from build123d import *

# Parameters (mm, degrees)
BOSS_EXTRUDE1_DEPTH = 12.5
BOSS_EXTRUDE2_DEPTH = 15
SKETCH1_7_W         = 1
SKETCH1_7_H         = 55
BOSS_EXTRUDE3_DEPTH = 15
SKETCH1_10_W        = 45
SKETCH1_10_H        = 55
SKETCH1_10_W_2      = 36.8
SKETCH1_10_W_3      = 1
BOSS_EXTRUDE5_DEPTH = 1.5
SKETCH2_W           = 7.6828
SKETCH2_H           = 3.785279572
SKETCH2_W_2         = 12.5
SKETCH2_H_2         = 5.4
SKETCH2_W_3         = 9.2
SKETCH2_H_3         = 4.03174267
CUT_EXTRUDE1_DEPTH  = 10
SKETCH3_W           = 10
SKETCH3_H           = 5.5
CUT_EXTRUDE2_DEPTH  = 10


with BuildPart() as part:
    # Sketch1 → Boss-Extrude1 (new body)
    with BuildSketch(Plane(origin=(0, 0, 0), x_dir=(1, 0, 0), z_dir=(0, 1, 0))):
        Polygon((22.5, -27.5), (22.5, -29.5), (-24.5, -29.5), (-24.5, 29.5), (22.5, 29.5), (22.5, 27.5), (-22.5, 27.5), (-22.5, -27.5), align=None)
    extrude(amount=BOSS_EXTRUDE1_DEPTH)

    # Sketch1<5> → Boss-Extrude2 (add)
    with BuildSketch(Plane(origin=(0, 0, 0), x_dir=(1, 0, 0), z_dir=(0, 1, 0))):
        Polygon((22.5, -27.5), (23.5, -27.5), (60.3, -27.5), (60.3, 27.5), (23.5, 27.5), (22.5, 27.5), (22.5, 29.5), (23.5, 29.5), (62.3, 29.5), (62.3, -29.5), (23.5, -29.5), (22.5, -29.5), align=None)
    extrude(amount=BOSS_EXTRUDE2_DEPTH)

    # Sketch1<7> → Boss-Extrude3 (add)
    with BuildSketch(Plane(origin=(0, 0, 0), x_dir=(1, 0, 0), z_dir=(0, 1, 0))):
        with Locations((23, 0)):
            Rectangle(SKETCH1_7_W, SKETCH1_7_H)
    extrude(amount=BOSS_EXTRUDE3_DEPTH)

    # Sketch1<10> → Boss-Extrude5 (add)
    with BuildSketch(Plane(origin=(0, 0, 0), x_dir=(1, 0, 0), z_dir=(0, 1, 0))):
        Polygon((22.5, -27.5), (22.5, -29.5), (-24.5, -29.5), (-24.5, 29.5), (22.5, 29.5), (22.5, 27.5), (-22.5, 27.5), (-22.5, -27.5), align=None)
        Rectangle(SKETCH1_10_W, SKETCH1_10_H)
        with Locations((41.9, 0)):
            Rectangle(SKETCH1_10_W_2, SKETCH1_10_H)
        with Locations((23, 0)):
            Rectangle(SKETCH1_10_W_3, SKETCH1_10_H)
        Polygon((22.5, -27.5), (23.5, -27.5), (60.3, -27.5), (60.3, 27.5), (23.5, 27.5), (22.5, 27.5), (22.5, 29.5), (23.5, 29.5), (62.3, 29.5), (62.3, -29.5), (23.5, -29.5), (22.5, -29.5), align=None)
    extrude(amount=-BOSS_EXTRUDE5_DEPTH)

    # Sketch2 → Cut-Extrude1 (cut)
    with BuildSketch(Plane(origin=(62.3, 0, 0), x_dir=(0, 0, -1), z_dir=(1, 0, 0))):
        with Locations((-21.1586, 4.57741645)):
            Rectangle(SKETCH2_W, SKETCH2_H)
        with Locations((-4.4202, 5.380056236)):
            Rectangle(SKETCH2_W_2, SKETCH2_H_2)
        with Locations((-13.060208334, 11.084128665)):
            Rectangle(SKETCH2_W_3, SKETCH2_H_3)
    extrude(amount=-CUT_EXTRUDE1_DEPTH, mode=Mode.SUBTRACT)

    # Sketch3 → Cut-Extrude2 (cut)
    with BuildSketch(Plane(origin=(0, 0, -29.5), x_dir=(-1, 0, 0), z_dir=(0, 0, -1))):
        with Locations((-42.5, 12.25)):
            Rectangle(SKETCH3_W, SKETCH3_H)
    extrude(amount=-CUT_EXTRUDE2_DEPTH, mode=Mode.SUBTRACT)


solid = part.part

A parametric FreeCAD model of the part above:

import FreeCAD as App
import Part
import Sketcher

V = App.Vector
Q = App.Units.Quantity

doc = App.newDocument("Part")
body = doc.addObject("PartDesign::Body", "Body")

# Sketch on XZ plane
sketch1 = doc.addObject("Sketcher::SketchObject", "Sketch")
body.addObject(sketch1)
sketch1.AttachmentSupport = (doc.XZ_Plane, [""])
sketch1.MapMode = "FlatFace"
sketch1.addGeometry([
    Part.LineSegment(V(22.5, 29.5, 0), V(22.5, 27.5, 0)),  # 0
    Part.LineSegment(V(22.5, 27.5, 0), V(-22.5, 27.5, 0)),  # 1
    Part.LineSegment(V(-22.5, 27.5, 0), V(-22.5, -27.5, 0)),  # 2
    Part.LineSegment(V(-22.5, -27.5, 0), V(22.5, -27.5, 0)),  # 3
    Part.LineSegment(V(22.5, -27.5, 0), V(22.5, -29.5, 0)),  # 4
    Part.LineSegment(V(22.5, -29.5, 0), V(-24.5, -29.5, 0)),  # 5
    Part.LineSegment(V(-24.5, -29.5, 0), V(-24.5, 29.5, 0)),  # 6
    Part.LineSegment(V(-24.5, 29.5, 0), V(22.5, 29.5, 0)),  # 7
], False)
sketch1.addConstraint([
    Sketcher.Constraint("Coincident", 0, 2, 1, 1),
    Sketcher.Constraint("Coincident", 1, 2, 2, 1),
    Sketcher.Constraint("Coincident", 2, 2, 3, 1),
    Sketcher.Constraint("Coincident", 3, 2, 4, 1),
    Sketcher.Constraint("Coincident", 4, 2, 5, 1),
    Sketcher.Constraint("Coincident", 5, 2, 6, 1),
    Sketcher.Constraint("Coincident", 6, 2, 7, 1),
    Sketcher.Constraint("Coincident", 7, 2, 0, 1),
    Sketcher.Constraint("Vertical", 0),
    Sketcher.Constraint("Horizontal", 1),
    Sketcher.Constraint("Vertical", 2),
    Sketcher.Constraint("Horizontal", 3),
    Sketcher.Constraint("Vertical", 4),
    Sketcher.Constraint("Horizontal", 5),
    Sketcher.Constraint("Vertical", 6),
    Sketcher.Constraint("Horizontal", 7),
    Sketcher.Constraint("Symmetric", 0, 2, 2, 2, -1, 1),
    Sketcher.Constraint("Symmetric", 4, 2, 7, 2, -1),
    Sketcher.Constraint("DistanceX", 1, 2, 1, 1, Q("45 mm")),
    Sketcher.Constraint("DistanceX", 5, 2, 5, 1, Q("47 mm")),
    Sketcher.Constraint("DistanceY", 0, 2, 0, 1, Q("2 mm")),
    Sketcher.Constraint("DistanceY", 2, 2, 2, 1, Q("55 mm")),
])
pad1 = doc.addObject("PartDesign::Pad", "Pad")
body.addObject(pad1)
pad1.Profile = sketch1
pad1.Length = 12.5
pad1.Reversed = True

# Sketch on XZ plane
sketch2 = doc.addObject("Sketcher::SketchObject", "Sketch001")
body.addObject(sketch2)
sketch2.AttachmentSupport = (doc.XZ_Plane, [""])
sketch2.MapMode = "FlatFace"
sketch2.addGeometry([
    Part.LineSegment(V(60.3, 27.5, 0), V(22.5, 27.5, 0)),  # 0
    Part.LineSegment(V(22.5, 27.5, 0), V(22.5, 29.5, 0)),  # 1
    Part.LineSegment(V(22.5, 29.5, 0), V(62.3, 29.5, 0)),  # 2
    Part.LineSegment(V(62.3, 29.5, 0), V(62.3, -29.5, 0)),  # 3
    Part.LineSegment(V(62.3, -29.5, 0), V(22.5, -29.5, 0)),  # 4
    Part.LineSegment(V(22.5, -29.5, 0), V(22.5, -27.5, 0)),  # 5
    Part.LineSegment(V(22.5, -27.5, 0), V(60.3, -27.5, 0)),  # 6
    Part.LineSegment(V(60.3, -27.5, 0), V(60.3, 27.5, 0)),  # 7
], False)
sketch2.addConstraint([
    Sketcher.Constraint("Coincident", 0, 2, 1, 1),
    Sketcher.Constraint("Coincident", 1, 2, 2, 1),
    Sketcher.Constraint("Coincident", 2, 2, 3, 1),
    Sketcher.Constraint("Coincident", 3, 2, 4, 1),
    Sketcher.Constraint("Coincident", 4, 2, 5, 1),
    Sketcher.Constraint("Coincident", 5, 2, 6, 1),
    Sketcher.Constraint("Coincident", 6, 2, 7, 1),
    Sketcher.Constraint("Coincident", 7, 2, 0, 1),
    Sketcher.Constraint("Horizontal", 0),
    Sketcher.Constraint("Vertical", 1),
    Sketcher.Constraint("Horizontal", 2),
    Sketcher.Constraint("Vertical", 3),
    Sketcher.Constraint("Horizontal", 4),
    Sketcher.Constraint("Vertical", 5),
    Sketcher.Constraint("Horizontal", 6),
    Sketcher.Constraint("Vertical", 7),
    Sketcher.Constraint("Symmetric", 1, 2, 4, 2, -1),
    Sketcher.Constraint("Equal", 1, 5),
    Sketcher.Constraint("DistanceY", 1, 1, 1, 2, Q("2 mm")),
    Sketcher.Constraint("DistanceY", 3, 2, 3, 1, Q("59 mm")),
    Sketcher.Constraint("DistanceX", 0, 2, 0, 1, Q("37.8 mm")),
    Sketcher.Constraint("DistanceX", 2, 1, 2, 2, Q("39.8 mm")),
    Sketcher.Constraint("DistanceX", -1, 1, 0, 2, Q("22.5 mm")),
])
pad2 = doc.addObject("PartDesign::Pad", "Pad001")
body.addObject(pad2)
pad2.Profile = sketch2
pad2.Length = 15
pad2.Reversed = True

# Sketch on XZ plane
sketch3 = doc.addObject("Sketcher::SketchObject", "Sketch002")
body.addObject(sketch3)
sketch3.AttachmentSupport = (doc.XZ_Plane, [""])
sketch3.MapMode = "FlatFace"
sketch3.addGeometry([
    Part.LineSegment(V(22.5, -27.5, 0), V(22.5, 27.5, 0)),
    Part.LineSegment(V(22.5, 27.5, 0), V(23.5, 27.5, 0)),
    Part.LineSegment(V(23.5, 27.5, 0), V(23.5, -27.5, 0)),
    Part.LineSegment(V(23.5, -27.5, 0), V(22.5, -27.5, 0)),
], False)
sketch3.addConstraint([
    Sketcher.Constraint("Coincident", 0, 2, 1, 1),
    Sketcher.Constraint("Coincident", 1, 2, 2, 1),
    Sketcher.Constraint("Coincident", 2, 2, 3, 1),
    Sketcher.Constraint("Coincident", 3, 2, 0, 1),
    Sketcher.Constraint("Vertical", 0),
    Sketcher.Constraint("Horizontal", 1),
    Sketcher.Constraint("Vertical", 2),
    Sketcher.Constraint("Horizontal", 3),
    Sketcher.Constraint("DistanceX", 1, 1, 1, 2, Q("1 mm")),
    Sketcher.Constraint("DistanceY", 0, 1, 0, 2, Q("55 mm")),
    Sketcher.Constraint("DistanceX", -1, 1, 0, 2, Q("22.5 mm")),
    Sketcher.Constraint("DistanceY", -1, 1, 0, 2, Q("27.5 mm")),
])
pad3 = doc.addObject("PartDesign::Pad", "Pad002")
body.addObject(pad3)
pad3.Profile = sketch3
pad3.Length = 15
pad3.Reversed = True

# Sketch on XZ plane
sketch4 = doc.addObject("Sketcher::SketchObject", "Sketch003")
body.addObject(sketch4)
sketch4.AttachmentSupport = (doc.XZ_Plane, [""])
sketch4.MapMode = "FlatFace"
sketch4.addGeometry([
    Part.LineSegment(V(-24, 30, 0), V(62, 30, 0)),
    Part.LineSegment(V(62, 30, 0), V(62, -30, 0)),
    Part.LineSegment(V(62, -30, 0), V(-24, -30, 0)),
    Part.LineSegment(V(-24, -30, 0), V(-24, 30, 0)),
], False)
sketch4.addConstraint([
    Sketcher.Constraint("Coincident", 0, 2, 1, 1),
    Sketcher.Constraint("Coincident", 1, 2, 2, 1),
    Sketcher.Constraint("Coincident", 2, 2, 3, 1),
    Sketcher.Constraint("Coincident", 3, 2, 0, 1),
    Sketcher.Constraint("Horizontal", 0),
    Sketcher.Constraint("Vertical", 1),
    Sketcher.Constraint("Horizontal", 2),
    Sketcher.Constraint("Vertical", 3),
    Sketcher.Constraint("DistanceY", 1, 2, 1, 1, Q("59 mm")),
    Sketcher.Constraint("DistanceX", 0, 1, 0, 2, Q("86.8 mm")),
    Sketcher.Constraint("DistanceX", -1, 1, 0, 2, Q("62.3 mm")),
    Sketcher.Constraint("DistanceY", -1, 1, 0, 2, Q("29.5 mm")),
])
pad4 = doc.addObject("PartDesign::Pad", "Pad003")
body.addObject(pad4)
pad4.Profile = sketch4
pad4.Length = 1.5

# Sketch on YZ plane
sketch5 = doc.addObject("Sketcher::SketchObject", "Sketch004")
body.addObject(sketch5)
sketch5.AttachmentSupport = (doc.YZ_Plane, [""])
sketch5.MapMode = "FlatFace"
sketch5.AttachmentOffset = App.Placement(V(0, 0, 62.3), App.Rotation())
sketch5.addGeometry([
    Part.LineSegment(V(6.5, 25, 0), V(2.7, 25, 0)),  # 0
    Part.LineSegment(V(2.7, 25, 0), V(2.7, 17.3, 0)),  # 1
    Part.LineSegment(V(2.7, 17.3, 0), V(6.5, 17.3, 0)),  # 2
    Part.LineSegment(V(6.5, 17.3, 0), V(6.5, 25, 0)),  # 3
    Part.LineSegment(V(8.1, 10.7, 0), V(2.7, 10.7, 0)),  # 4
    Part.LineSegment(V(2.7, 10.7, 0), V(2.7, -1.8, 0)),  # 5
    Part.LineSegment(V(2.7, -1.8, 0), V(8.1, -1.8, 0)),  # 6
    Part.LineSegment(V(8.1, -1.8, 0), V(8.1, 10.7, 0)),  # 7
    Part.LineSegment(V(13.1, 17.7, 0), V(9.1, 17.7, 0)),  # 8
    Part.LineSegment(V(9.1, 17.7, 0), V(9.1, 8.5, 0)),  # 9
    Part.LineSegment(V(9.1, 8.5, 0), V(13.1, 8.5, 0)),  # 10
    Part.LineSegment(V(13.1, 8.5, 0), V(13.1, 17.7, 0)),  # 11
], False)
sketch5.addConstraint([
    Sketcher.Constraint("Coincident", 0, 2, 1, 1),
    Sketcher.Constraint("Coincident", 1, 2, 2, 1),
    Sketcher.Constraint("Coincident", 2, 2, 3, 1),
    Sketcher.Constraint("Coincident", 3, 2, 0, 1),
    Sketcher.Constraint("Coincident", 4, 2, 5, 1),
    Sketcher.Constraint("Coincident", 5, 2, 6, 1),
    Sketcher.Constraint("Coincident", 6, 2, 7, 1),
    Sketcher.Constraint("Coincident", 7, 2, 4, 1),
    Sketcher.Constraint("Coincident", 8, 2, 9, 1),
    Sketcher.Constraint("Coincident", 9, 2, 10, 1),
    Sketcher.Constraint("Coincident", 10, 2, 11, 1),
    Sketcher.Constraint("Coincident", 11, 2, 8, 1),
    Sketcher.Constraint("Horizontal", 0),
    Sketcher.Constraint("Vertical", 1),
    Sketcher.Constraint("Horizontal", 2),
    Sketcher.Constraint("Vertical", 3),
    Sketcher.Constraint("Horizontal", 4),
    Sketcher.Constraint("Vertical", 5),
    Sketcher.Constraint("Horizontal", 6),
    Sketcher.Constraint("Vertical", 7),
    Sketcher.Constraint("Horizontal", 8),
    Sketcher.Constraint("Vertical", 9),
    Sketcher.Constraint("Horizontal", 10),
    Sketcher.Constraint("Vertical", 11),
    Sketcher.Constraint("DistanceX", 4, 2, 4, 1, Q("5.4 mm")),
    Sketcher.Constraint("DistanceY", 5, 2, 5, 1, Q("12.5 mm")),
    Sketcher.Constraint("DistanceY", 9, 2, 9, 1, Q("9.2 mm")),
    Sketcher.Constraint("DistanceY", -1, 1, 0, 2, Q("25 mm")),
    Sketcher.Constraint("DistanceX", -1, 1, 10, 2, Q("13.1 mm")),
    Sketcher.Constraint("DistanceX", 4, 2, 2, 2, Q("3.79 mm")),
    Sketcher.Constraint("DistanceY", 1, 2, 1, 1, Q("7.6828 mm")),
    Sketcher.Constraint("DistanceY", 4, 2, 1, 2, Q("6.647 mm")),
    Sketcher.Constraint("DistanceX", 0, 2, 0, 1, Q("3.78528 mm")),
    Sketcher.Constraint("DistanceX", 2, 2, 8, 2, Q("2.598201 mm")),
    Sketcher.Constraint("DistanceX", 8, 2, 8, 1, Q("4.031743 mm")),
    Sketcher.Constraint("DistanceY", -1, 1, 8, 2, Q("17.660208 mm")),
])
pocket1 = doc.addObject("PartDesign::Pocket", "Pocket")
body.addObject(pocket1)
pocket1.Profile = sketch5
pocket1.Length = 10

# Sketch on XY plane
sketch6 = doc.addObject("Sketcher::SketchObject", "Sketch005")
body.addObject(sketch6)
sketch6.AttachmentSupport = (doc.XY_Plane, [""])
sketch6.MapMode = "FlatFace"
sketch6.AttachmentOffset = App.Placement(V(0, 0, -29.5), App.Rotation())
sketch6.addGeometry([
    Part.LineSegment(V(48, 15, 0), V(48, 10, 0)),
    Part.LineSegment(V(48, 10, 0), V(38, 10, 0)),
    Part.LineSegment(V(38, 10, 0), V(38, 15, 0)),
    Part.LineSegment(V(38, 15, 0), V(48, 15, 0)),
], False)
sketch6.addConstraint([
    Sketcher.Constraint("Coincident", 0, 2, 1, 1),
    Sketcher.Constraint("Coincident", 1, 2, 2, 1),
    Sketcher.Constraint("Coincident", 2, 2, 3, 1),
    Sketcher.Constraint("Coincident", 3, 2, 0, 1),
    Sketcher.Constraint("Vertical", 0),
    Sketcher.Constraint("Horizontal", 1),
    Sketcher.Constraint("Vertical", 2),
    Sketcher.Constraint("Horizontal", 3),
    Sketcher.Constraint("DistanceX", 1, 2, 1, 1, Q("10 mm")),
    Sketcher.Constraint("DistanceY", 0, 2, 0, 1, Q("5.5 mm")),
    Sketcher.Constraint("DistanceY", -1, 1, 2, 2, Q("15 mm")),
    Sketcher.Constraint("DistanceX", -1, 1, 0, 2, Q("47.5 mm")),
])
pocket2 = doc.addObject("PartDesign::Pocket", "Pocket001")
body.addObject(pocket2)
pocket2.Profile = sketch6
pocket2.Length = 10
pocket2.Reversed = True

doc.recompute()
